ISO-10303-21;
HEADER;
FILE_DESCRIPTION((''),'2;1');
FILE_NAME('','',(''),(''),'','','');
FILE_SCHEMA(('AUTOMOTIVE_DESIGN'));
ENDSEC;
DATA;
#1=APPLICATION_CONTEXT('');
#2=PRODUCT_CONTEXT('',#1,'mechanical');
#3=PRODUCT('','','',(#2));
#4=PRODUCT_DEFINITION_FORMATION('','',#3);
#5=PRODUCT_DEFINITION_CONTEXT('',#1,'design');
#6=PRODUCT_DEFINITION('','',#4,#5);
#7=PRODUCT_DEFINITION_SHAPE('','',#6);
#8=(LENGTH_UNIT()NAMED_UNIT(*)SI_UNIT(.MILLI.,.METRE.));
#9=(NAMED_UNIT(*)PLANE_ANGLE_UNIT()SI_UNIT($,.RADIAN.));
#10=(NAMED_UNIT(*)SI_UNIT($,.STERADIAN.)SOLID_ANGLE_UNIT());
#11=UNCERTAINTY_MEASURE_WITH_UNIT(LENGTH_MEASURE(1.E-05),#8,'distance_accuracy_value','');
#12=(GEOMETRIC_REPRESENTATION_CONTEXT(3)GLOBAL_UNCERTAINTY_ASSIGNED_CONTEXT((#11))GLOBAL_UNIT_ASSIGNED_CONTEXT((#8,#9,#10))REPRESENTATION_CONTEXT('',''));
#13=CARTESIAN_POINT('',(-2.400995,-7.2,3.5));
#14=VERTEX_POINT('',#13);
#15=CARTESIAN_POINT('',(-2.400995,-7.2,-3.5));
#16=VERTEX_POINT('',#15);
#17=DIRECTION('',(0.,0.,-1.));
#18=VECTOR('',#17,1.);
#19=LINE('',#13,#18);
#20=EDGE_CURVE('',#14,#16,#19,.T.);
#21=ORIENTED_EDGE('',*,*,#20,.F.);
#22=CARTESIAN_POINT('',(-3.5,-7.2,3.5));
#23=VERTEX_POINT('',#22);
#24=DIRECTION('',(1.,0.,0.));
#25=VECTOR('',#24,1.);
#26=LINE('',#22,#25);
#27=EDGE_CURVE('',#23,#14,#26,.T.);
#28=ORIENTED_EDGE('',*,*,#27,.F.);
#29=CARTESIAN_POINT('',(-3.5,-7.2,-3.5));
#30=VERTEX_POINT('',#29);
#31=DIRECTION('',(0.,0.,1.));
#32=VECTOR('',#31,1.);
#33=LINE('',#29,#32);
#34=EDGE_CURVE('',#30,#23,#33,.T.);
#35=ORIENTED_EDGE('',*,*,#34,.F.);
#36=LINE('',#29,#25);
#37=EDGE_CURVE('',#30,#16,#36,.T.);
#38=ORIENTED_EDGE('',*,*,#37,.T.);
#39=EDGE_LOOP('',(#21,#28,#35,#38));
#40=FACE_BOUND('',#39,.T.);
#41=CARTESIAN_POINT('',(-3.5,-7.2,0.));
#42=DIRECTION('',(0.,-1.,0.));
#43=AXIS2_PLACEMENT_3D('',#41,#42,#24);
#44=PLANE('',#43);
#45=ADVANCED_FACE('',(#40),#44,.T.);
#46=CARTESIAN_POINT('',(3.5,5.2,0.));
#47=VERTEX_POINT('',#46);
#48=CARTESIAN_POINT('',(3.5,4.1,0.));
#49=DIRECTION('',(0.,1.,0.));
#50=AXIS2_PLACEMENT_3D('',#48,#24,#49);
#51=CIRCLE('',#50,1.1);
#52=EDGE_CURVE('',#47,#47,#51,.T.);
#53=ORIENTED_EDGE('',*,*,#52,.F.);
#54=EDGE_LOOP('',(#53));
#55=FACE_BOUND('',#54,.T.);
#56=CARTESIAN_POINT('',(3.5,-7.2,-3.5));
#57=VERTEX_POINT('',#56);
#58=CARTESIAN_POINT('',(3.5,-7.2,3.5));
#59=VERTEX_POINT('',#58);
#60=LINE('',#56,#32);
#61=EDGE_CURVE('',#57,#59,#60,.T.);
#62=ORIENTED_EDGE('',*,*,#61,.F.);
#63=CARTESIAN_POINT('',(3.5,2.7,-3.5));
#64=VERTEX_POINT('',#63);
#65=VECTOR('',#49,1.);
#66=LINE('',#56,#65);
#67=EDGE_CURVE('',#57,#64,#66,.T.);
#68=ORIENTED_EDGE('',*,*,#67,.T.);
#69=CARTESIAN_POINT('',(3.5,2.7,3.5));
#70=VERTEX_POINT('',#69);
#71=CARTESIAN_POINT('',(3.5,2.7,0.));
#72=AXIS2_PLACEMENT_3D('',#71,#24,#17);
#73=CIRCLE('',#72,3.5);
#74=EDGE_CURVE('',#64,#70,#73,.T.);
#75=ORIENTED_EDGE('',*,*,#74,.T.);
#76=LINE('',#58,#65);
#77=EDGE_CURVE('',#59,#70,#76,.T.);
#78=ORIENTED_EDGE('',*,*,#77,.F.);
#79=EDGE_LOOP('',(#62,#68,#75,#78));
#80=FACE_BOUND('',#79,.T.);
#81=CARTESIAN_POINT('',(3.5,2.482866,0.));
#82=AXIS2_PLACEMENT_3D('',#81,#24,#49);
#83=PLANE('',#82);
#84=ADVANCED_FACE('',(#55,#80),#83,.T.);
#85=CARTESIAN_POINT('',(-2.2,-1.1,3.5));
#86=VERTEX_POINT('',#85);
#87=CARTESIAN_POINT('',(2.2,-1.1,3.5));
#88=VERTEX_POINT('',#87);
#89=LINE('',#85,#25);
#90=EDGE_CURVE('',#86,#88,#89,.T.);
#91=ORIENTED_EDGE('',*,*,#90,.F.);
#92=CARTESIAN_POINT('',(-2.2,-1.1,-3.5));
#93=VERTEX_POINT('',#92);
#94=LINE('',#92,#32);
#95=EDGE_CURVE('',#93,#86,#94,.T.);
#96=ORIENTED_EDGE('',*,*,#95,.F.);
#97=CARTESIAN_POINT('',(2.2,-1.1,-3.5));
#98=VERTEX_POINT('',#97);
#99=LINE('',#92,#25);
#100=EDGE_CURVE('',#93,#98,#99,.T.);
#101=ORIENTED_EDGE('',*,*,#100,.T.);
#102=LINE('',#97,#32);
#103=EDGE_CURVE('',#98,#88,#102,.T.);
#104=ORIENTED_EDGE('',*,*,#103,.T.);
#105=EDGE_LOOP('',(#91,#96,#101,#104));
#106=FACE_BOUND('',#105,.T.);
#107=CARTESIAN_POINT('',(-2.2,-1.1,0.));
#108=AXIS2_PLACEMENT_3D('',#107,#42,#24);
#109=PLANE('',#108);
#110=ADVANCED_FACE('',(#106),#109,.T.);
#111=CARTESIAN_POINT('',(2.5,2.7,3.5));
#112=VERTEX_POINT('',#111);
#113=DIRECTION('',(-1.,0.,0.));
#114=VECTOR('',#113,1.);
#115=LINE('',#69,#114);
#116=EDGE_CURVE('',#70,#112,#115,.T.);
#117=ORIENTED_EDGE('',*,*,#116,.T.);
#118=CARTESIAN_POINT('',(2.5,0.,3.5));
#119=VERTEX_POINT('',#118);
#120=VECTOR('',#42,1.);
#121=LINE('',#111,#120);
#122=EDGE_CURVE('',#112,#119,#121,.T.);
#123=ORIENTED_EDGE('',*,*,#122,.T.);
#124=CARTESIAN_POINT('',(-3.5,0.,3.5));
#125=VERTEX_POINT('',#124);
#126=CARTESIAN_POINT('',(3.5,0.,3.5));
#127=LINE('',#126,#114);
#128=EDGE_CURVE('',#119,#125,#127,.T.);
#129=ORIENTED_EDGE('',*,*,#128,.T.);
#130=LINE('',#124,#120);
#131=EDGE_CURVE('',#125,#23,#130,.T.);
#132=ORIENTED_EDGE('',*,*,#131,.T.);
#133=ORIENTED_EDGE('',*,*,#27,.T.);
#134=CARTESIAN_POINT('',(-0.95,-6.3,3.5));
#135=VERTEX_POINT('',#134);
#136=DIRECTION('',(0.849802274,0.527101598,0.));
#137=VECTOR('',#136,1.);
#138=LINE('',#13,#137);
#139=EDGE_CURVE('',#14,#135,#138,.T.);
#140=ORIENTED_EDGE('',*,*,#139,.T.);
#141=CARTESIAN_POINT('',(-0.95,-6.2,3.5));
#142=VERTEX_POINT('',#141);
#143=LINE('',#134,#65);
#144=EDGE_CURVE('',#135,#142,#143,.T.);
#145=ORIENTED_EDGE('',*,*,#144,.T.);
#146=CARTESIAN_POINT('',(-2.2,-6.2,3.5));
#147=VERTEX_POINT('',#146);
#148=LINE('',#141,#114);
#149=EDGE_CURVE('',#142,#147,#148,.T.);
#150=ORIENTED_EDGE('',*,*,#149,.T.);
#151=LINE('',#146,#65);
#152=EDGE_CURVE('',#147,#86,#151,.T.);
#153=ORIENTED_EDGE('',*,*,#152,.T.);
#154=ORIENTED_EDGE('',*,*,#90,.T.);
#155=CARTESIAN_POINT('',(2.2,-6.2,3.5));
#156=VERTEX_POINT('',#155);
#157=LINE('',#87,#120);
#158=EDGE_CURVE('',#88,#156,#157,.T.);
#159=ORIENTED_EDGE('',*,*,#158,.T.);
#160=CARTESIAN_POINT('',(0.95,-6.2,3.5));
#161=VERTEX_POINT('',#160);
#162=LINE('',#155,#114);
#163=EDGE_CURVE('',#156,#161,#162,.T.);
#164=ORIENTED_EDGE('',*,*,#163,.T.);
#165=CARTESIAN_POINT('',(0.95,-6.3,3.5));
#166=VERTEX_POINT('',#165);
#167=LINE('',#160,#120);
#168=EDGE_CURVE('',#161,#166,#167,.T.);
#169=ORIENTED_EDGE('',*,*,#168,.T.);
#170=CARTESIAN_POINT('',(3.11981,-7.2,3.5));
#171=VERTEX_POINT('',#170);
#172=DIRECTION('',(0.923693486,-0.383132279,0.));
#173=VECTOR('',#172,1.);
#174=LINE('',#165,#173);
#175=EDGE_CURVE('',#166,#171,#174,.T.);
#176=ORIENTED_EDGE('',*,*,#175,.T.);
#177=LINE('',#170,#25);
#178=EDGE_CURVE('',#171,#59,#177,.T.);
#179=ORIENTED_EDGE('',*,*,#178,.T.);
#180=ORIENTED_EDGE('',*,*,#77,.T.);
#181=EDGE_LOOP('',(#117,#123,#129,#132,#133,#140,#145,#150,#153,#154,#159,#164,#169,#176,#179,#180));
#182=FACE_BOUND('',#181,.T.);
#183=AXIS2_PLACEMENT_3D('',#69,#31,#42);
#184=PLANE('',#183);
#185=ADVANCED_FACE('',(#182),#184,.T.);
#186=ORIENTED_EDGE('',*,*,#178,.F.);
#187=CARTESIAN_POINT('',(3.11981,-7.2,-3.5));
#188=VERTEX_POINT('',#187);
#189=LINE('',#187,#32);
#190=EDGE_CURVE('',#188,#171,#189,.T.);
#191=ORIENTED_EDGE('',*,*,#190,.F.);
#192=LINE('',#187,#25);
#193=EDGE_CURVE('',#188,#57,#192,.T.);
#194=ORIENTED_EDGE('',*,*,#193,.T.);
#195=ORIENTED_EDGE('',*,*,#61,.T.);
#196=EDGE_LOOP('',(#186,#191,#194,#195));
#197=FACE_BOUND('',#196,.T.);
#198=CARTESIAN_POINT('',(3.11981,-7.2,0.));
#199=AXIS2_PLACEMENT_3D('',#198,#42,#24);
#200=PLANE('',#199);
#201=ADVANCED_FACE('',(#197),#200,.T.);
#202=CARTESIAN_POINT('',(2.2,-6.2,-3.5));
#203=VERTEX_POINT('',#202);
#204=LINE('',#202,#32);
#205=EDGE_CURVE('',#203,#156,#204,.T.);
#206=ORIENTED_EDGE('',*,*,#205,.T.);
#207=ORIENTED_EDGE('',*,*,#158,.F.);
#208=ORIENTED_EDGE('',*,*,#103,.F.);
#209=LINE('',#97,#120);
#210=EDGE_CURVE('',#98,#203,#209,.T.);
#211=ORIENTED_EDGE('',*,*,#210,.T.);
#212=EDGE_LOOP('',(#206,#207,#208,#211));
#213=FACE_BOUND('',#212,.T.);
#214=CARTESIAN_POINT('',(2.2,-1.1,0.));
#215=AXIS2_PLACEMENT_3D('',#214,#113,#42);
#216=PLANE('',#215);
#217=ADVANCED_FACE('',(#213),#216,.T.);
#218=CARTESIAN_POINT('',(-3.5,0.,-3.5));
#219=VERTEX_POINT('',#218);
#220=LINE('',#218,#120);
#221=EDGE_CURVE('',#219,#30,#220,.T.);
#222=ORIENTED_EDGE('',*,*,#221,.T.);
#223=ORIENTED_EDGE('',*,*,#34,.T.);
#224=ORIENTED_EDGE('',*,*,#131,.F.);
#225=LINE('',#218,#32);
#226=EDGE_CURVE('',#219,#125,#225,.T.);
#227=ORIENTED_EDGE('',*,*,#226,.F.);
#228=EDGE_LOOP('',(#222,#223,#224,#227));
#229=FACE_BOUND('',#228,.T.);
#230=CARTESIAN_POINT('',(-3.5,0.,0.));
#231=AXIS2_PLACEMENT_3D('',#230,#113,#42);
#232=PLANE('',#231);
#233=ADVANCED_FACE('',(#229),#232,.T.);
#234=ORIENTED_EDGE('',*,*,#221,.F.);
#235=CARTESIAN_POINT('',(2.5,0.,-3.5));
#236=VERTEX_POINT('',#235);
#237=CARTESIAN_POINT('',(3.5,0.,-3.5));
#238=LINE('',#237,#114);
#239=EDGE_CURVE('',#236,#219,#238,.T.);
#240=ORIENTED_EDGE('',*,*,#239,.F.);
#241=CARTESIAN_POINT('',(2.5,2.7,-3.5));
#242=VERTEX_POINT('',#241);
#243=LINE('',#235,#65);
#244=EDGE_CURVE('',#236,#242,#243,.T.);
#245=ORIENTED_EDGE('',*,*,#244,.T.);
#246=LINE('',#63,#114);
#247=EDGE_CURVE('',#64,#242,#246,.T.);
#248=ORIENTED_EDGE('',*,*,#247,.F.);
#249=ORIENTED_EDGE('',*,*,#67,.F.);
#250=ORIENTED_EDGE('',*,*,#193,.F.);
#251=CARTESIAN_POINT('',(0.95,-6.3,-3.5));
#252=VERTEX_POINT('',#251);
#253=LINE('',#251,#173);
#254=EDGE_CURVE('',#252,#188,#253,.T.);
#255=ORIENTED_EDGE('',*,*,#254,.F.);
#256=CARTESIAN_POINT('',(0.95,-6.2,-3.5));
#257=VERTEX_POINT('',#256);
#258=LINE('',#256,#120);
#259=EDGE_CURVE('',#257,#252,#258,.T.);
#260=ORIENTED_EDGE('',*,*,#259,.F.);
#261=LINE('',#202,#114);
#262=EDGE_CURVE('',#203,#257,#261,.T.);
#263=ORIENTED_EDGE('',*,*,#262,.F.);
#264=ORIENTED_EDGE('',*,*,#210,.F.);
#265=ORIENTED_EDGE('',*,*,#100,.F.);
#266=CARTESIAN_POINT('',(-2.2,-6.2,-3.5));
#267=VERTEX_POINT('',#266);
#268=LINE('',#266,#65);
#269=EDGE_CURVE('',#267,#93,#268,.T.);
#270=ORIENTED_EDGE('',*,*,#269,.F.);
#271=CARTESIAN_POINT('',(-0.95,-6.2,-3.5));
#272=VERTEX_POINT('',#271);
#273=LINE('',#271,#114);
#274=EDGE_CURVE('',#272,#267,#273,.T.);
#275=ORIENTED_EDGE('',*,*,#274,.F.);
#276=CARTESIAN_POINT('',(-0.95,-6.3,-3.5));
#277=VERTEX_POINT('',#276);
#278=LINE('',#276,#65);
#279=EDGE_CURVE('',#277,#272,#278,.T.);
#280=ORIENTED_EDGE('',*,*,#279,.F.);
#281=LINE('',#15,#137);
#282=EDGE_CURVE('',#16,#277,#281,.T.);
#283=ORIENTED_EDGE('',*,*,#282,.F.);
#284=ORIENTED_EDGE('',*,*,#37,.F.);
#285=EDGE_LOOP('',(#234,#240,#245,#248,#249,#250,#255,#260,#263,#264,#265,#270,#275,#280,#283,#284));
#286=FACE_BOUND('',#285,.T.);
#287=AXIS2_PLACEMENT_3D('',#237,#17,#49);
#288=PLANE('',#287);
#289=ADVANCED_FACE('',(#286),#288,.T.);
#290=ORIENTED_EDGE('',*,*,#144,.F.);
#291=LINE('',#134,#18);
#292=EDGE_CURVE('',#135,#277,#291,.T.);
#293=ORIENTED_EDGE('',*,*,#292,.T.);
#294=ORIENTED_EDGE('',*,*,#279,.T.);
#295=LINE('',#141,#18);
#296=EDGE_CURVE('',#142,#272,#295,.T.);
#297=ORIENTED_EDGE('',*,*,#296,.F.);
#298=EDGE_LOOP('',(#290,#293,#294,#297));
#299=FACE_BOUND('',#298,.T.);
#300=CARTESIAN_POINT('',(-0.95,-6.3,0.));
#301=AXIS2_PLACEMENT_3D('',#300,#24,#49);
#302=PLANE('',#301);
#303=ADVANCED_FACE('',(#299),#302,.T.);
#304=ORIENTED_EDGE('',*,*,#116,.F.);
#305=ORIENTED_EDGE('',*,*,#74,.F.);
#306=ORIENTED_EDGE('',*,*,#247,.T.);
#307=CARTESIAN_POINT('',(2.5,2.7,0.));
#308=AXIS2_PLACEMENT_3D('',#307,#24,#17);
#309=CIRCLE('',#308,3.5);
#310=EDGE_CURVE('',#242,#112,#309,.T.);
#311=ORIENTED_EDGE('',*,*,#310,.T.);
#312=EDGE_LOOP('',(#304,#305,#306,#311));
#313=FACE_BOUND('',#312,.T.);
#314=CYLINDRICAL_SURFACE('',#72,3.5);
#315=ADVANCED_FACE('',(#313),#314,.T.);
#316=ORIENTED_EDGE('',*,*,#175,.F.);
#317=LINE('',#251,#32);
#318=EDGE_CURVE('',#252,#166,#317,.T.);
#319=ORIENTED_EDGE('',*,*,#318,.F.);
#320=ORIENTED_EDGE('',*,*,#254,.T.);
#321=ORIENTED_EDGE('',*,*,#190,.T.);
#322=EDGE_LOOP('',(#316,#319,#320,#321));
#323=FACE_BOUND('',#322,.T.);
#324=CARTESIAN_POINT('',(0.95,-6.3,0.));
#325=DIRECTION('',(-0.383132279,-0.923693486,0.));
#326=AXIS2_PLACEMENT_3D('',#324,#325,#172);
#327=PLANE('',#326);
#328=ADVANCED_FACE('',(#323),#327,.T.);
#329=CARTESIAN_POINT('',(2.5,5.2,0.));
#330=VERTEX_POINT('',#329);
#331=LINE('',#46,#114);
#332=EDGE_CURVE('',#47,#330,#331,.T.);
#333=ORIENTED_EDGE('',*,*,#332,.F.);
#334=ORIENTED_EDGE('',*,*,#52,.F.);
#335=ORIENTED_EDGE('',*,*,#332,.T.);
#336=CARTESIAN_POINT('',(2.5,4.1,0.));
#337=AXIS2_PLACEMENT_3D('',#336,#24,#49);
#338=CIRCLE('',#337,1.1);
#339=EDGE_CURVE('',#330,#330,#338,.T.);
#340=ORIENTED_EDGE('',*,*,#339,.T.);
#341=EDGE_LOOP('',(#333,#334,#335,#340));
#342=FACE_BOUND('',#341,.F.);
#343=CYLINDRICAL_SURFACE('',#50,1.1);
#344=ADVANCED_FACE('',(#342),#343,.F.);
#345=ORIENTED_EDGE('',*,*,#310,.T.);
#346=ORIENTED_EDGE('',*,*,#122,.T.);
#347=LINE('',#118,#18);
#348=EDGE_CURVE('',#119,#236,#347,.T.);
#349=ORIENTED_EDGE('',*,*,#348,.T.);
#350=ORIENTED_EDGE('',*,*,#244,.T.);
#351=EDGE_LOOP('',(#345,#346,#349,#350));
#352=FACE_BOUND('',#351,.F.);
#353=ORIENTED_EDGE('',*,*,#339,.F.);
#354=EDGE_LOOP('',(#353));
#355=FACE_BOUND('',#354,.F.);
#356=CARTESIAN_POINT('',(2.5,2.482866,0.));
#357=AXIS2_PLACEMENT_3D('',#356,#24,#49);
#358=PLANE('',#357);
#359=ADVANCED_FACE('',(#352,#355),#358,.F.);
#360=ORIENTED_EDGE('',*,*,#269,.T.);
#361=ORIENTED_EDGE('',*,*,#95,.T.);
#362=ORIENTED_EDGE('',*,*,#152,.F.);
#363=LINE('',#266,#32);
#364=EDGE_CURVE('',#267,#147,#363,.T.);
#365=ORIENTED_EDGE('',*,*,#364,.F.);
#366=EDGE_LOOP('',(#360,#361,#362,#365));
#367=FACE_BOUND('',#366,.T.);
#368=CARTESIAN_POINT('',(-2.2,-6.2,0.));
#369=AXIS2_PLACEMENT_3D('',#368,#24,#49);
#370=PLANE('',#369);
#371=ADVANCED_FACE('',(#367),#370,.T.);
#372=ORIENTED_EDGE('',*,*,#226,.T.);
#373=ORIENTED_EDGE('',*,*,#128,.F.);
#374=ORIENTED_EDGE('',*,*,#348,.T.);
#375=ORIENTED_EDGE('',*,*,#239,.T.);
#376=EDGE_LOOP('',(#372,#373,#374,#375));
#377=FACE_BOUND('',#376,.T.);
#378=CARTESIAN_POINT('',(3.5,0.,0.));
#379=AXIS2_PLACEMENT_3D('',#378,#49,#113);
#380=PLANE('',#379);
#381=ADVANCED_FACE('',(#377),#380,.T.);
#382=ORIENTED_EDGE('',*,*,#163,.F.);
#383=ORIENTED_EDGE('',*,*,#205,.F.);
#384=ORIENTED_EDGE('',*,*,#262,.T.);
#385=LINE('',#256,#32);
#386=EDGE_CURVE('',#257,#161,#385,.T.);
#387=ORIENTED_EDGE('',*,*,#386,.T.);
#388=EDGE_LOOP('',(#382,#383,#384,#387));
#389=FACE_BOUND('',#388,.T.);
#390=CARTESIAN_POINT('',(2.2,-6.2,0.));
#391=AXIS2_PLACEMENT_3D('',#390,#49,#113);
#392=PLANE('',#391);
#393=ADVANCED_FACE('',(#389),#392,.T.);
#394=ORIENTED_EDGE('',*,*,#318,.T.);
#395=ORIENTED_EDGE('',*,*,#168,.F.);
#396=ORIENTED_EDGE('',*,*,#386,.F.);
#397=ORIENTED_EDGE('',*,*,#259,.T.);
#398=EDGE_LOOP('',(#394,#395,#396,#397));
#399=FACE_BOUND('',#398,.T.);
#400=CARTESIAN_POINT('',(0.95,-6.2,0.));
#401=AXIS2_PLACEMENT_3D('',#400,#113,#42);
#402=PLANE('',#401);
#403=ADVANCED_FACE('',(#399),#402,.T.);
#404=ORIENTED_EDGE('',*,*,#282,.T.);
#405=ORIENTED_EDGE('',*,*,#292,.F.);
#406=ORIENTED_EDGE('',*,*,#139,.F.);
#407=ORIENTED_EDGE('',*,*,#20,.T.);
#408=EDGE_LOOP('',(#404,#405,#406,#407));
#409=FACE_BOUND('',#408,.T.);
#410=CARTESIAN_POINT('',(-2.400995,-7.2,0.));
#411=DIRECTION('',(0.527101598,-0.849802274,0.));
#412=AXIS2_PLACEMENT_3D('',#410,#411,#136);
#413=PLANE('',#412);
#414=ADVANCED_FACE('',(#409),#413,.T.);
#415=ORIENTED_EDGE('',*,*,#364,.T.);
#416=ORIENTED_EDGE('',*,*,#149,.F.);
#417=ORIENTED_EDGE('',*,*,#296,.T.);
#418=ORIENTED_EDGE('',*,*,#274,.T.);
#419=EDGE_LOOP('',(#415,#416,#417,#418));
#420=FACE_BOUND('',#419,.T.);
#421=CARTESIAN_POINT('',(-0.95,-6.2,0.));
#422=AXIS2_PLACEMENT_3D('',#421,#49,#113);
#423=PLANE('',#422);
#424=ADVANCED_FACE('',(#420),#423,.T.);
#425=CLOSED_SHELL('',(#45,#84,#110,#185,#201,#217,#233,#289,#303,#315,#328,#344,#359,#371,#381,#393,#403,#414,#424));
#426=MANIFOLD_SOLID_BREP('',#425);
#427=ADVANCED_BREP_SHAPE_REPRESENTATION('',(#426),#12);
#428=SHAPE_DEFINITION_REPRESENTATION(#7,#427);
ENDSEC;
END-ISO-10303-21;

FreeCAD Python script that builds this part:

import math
import FreeCAD as App
import Part
import Sketcher

V = App.Vector
Q = App.Units.Quantity

doc = App.newDocument("Part")
body = doc.addObject("PartDesign::Body", "Body")

# Sketch on XY plane
sketch1 = body.newObject("Sketcher::SketchObject", "Sketch")
sketch1.AttachmentSupport = (doc.getObject("XY_Plane"), [""])
sketch1.MapMode = "FlatFace"
sketch1.addGeometry(Part.LineSegment(V(-0.95, -6.2, 0), V(-2.2, -6.2, 0)), False)
sketch1.addGeometry(Part.LineSegment(V(-2.2, -6.2, 0), V(-2.2, -1.1, 0)), False)
sketch1.addGeometry(Part.LineSegment(V(-2.2, -1.1, 0), V(2.2, -1.1, 0)), False)
sketch1.addGeometry(Part.LineSegment(V(2.2, -1.1, 0), V(2.2, -6.2, 0)), False)
sketch1.addGeometry(Part.LineSegment(V(2.2, -6.2, 0), V(0.95, -6.2, 0)), False)
sketch1.addGeometry(Part.LineSegment(V(0.95, -6.2, 0), V(0.95, -6.3, 0)), False)
sketch1.addGeometry(Part.LineSegment(V(0.95, -6.3, 0), V(3.12, -7.2, 0)), False)
sketch1.addGeometry(Part.LineSegment(V(3.12, -7.2, 0), V(3.5, -7.2, 0)), False)
sketch1.addGeometry(Part.LineSegment(V(3.5, -7.2, 0), V(3.5, 0, 0)), False)
sketch1.addGeometry(Part.LineSegment(V(3.5, 0, 0), V(-3.5, 0, 0)), False)
sketch1.addGeometry(Part.LineSegment(V(-3.5, 0, 0), V(-3.5, -7.2, 0)), False)
sketch1.addGeometry(Part.LineSegment(V(-3.5, -7.2, 0), V(-2.4, -7.2, 0)), False)
sketch1.addGeometry(Part.LineSegment(V(-2.4, -7.2, 0), V(-0.95, -6.3, 0)), False)
sketch1.addGeometry(Part.LineSegment(V(-0.95, -6.3, 0), V(-0.95, -6.2, 0)), False)
sketch1.addConstraint(Sketcher.Constraint("Coincident", 0, 2, 1, 1))
sketch1.addConstraint(Sketcher.Constraint("Coincident", 1, 2, 2, 1))
sketch1.addConstraint(Sketcher.Constraint("Coincident", 2, 2, 3, 1))
sketch1.addConstraint(Sketcher.Constraint("Coincident", 3, 2, 4, 1))
sketch1.addConstraint(Sketcher.Constraint("Coincident", 4, 2, 5, 1))
sketch1.addConstraint(Sketcher.Constraint("Coincident", 5, 2, 6, 1))
sketch1.addConstraint(Sketcher.Constraint("Coincident", 6, 2, 7, 1))
sketch1.addConstraint(Sketcher.Constraint("Coincident", 7, 2, 8, 1))
sketch1.addConstraint(Sketcher.Constraint("Coincident", 8, 2, 9, 1))
sketch1.addConstraint(Sketcher.Constraint("Coincident", 9, 2, 10, 1))
sketch1.addConstraint(Sketcher.Constraint("Coincident", 10, 2, 11, 1))
sketch1.addConstraint(Sketcher.Constraint("Coincident", 11, 2, 12, 1))
sketch1.addConstraint(Sketcher.Constraint("Coincident", 12, 2, 13, 1))
sketch1.addConstraint(Sketcher.Constraint("Coincident", 13, 2, 0, 1))
sketch1.addConstraint(Sketcher.Constraint("Horizontal", 0))
sketch1.addConstraint(Sketcher.Constraint("Vertical", 1))
sketch1.addConstraint(Sketcher.Constraint("Horizontal", 2))
sketch1.addConstraint(Sketcher.Constraint("Vertical", 3))
sketch1.addConstraint(Sketcher.Constraint("Horizontal", 4))
sketch1.addConstraint(Sketcher.Constraint("Vertical", 5))
sketch1.addConstraint(Sketcher.Constraint("Horizontal", 7))
sketch1.addConstraint(Sketcher.Constraint("Vertical", 8))
sketch1.addConstraint(Sketcher.Constraint("Horizontal", 9))
sketch1.addConstraint(Sketcher.Constraint("Vertical", 10))
sketch1.addConstraint(Sketcher.Constraint("Horizontal", 11))
sketch1.addConstraint(Sketcher.Constraint("Vertical", 13))
sketch1.addConstraint(Sketcher.Constraint("Symmetric", 8, 2, 9, 2, -1, 1))
sketch1.addConstraint(Sketcher.Constraint("Symmetric", 0, 2, 3, 2, -2))
sketch1.addConstraint(Sketcher.Constraint("Symmetric", 5, 2, 12, 2, -2))
sketch1.addConstraint(Sketcher.Constraint("Horizontal", 7, 2, 10, 2))
sketch1.addConstraint(Sketcher.Constraint("DistanceX", 9, 2, 9, 1, Q("7 mm")))
sketch1.addConstraint(Sketcher.Constraint("DistanceX", 2, 1, 2, 2, Q("4.4 mm")))
sketch1.addConstraint(Sketcher.Constraint("DistanceY", 1, 1, 1, 2, Q("5.1 mm")))
sketch1.addConstraint(Sketcher.Constraint("DistanceY", 5, 2, 5, 1, Q("0.1 mm")))
sketch1.addConstraint(Sketcher.Constraint("DistanceY", 8, 1, 8, 2, Q("7.2 mm")))
sketch1.addConstraint(Sketcher.Constraint("DistanceY", 6, 2, 3, 2, Q("1 mm")))
sketch1.addConstraint(Sketcher.Constraint("DistanceX", 0, 2, 0, 1, Q("1.25 mm")))
sketch1.addConstraint(Sketcher.Constraint("DistanceX", 7, 1, 7, 2, Q("0.38019 mm")))
sketch1.addConstraint(Sketcher.Constraint("Distance", 12, Q("1.707451 mm")))
pad1 = body.newObject("PartDesign::Pad", "Pad")
pad1.Profile = sketch1
pad1.Length = 7
pad1.Midplane = True

# Sketch on YZ plane
sketch2 = body.newObject("Sketcher::SketchObject", "Sketch001")
sketch2.AttachmentSupport = (doc.getObject("YZ_Plane"), [""])
sketch2.MapMode = "FlatFace"
sketch2.AttachmentOffset = App.Placement(V(0, 0, 3.5), App.Rotation())
sketch2.addGeometry(Part.LineSegment(V(2.7, 3.5, 0), V(0, 3.5, 0)), False)
sketch2.addGeometry(Part.LineSegment(V(0, 3.5, 0), V(0, -3.5, 0)), False)
sketch2.addGeometry(Part.LineSegment(V(0, -3.5, 0), V(2.7, -3.5, 0)), False)
sketch2.addGeometry(Part.ArcOfCircle(Part.Circle(V(2.7, 0, 0), V(0, 0, 1), 3.5), math.radians(-90), math.radians(90)), False)
sketch2.addGeometry(Part.Circle(V(4.1, 0, 0), V(0, 0, 1), 1.1), False)
sketch2.addConstraint(Sketcher.Constraint("Coincident", 0, 2, 1, 1))
sketch2.addConstraint(Sketcher.Constraint("Coincident", 1, 2, 2, 1))
sketch2.addConstraint(Sketcher.Constraint("Tangent", 2, 2, 3, 1))
sketch2.addConstraint(Sketcher.Constraint("Tangent", 3, 2, 0, 1))
sketch2.addConstraint(Sketcher.Constraint("Horizontal", 0))
sketch2.addConstraint(Sketcher.Constraint("Vertical", 1))
sketch2.addConstraint(Sketcher.Constraint("Horizontal", 2))
sketch2.addConstraint(Sketcher.Constraint("Symmetric", 0, 2, 1, 2, -1, 1))
sketch2.addConstraint(Sketcher.Constraint("PointOnObject", 4, 3, -1))
sketch2.addConstraint(Sketcher.Constraint("Diameter", 4, Q("2.2 mm")))
sketch2.addConstraint(Sketcher.Constraint("Radius", 3, Q("3.5 mm")))
sketch2.addConstraint(Sketcher.Constraint("DistanceX", 0, 2, 0, 1, Q("2.7 mm")))
sketch2.addConstraint(Sketcher.Constraint("DistanceX", -1, 1, 4, 3, Q("4.1 mm")))
pad2 = body.newObject("PartDesign::Pad", "Pad001")
pad2.Profile = sketch2
pad2.Length = 1
pad2.Reversed = True

doc.recompute()
